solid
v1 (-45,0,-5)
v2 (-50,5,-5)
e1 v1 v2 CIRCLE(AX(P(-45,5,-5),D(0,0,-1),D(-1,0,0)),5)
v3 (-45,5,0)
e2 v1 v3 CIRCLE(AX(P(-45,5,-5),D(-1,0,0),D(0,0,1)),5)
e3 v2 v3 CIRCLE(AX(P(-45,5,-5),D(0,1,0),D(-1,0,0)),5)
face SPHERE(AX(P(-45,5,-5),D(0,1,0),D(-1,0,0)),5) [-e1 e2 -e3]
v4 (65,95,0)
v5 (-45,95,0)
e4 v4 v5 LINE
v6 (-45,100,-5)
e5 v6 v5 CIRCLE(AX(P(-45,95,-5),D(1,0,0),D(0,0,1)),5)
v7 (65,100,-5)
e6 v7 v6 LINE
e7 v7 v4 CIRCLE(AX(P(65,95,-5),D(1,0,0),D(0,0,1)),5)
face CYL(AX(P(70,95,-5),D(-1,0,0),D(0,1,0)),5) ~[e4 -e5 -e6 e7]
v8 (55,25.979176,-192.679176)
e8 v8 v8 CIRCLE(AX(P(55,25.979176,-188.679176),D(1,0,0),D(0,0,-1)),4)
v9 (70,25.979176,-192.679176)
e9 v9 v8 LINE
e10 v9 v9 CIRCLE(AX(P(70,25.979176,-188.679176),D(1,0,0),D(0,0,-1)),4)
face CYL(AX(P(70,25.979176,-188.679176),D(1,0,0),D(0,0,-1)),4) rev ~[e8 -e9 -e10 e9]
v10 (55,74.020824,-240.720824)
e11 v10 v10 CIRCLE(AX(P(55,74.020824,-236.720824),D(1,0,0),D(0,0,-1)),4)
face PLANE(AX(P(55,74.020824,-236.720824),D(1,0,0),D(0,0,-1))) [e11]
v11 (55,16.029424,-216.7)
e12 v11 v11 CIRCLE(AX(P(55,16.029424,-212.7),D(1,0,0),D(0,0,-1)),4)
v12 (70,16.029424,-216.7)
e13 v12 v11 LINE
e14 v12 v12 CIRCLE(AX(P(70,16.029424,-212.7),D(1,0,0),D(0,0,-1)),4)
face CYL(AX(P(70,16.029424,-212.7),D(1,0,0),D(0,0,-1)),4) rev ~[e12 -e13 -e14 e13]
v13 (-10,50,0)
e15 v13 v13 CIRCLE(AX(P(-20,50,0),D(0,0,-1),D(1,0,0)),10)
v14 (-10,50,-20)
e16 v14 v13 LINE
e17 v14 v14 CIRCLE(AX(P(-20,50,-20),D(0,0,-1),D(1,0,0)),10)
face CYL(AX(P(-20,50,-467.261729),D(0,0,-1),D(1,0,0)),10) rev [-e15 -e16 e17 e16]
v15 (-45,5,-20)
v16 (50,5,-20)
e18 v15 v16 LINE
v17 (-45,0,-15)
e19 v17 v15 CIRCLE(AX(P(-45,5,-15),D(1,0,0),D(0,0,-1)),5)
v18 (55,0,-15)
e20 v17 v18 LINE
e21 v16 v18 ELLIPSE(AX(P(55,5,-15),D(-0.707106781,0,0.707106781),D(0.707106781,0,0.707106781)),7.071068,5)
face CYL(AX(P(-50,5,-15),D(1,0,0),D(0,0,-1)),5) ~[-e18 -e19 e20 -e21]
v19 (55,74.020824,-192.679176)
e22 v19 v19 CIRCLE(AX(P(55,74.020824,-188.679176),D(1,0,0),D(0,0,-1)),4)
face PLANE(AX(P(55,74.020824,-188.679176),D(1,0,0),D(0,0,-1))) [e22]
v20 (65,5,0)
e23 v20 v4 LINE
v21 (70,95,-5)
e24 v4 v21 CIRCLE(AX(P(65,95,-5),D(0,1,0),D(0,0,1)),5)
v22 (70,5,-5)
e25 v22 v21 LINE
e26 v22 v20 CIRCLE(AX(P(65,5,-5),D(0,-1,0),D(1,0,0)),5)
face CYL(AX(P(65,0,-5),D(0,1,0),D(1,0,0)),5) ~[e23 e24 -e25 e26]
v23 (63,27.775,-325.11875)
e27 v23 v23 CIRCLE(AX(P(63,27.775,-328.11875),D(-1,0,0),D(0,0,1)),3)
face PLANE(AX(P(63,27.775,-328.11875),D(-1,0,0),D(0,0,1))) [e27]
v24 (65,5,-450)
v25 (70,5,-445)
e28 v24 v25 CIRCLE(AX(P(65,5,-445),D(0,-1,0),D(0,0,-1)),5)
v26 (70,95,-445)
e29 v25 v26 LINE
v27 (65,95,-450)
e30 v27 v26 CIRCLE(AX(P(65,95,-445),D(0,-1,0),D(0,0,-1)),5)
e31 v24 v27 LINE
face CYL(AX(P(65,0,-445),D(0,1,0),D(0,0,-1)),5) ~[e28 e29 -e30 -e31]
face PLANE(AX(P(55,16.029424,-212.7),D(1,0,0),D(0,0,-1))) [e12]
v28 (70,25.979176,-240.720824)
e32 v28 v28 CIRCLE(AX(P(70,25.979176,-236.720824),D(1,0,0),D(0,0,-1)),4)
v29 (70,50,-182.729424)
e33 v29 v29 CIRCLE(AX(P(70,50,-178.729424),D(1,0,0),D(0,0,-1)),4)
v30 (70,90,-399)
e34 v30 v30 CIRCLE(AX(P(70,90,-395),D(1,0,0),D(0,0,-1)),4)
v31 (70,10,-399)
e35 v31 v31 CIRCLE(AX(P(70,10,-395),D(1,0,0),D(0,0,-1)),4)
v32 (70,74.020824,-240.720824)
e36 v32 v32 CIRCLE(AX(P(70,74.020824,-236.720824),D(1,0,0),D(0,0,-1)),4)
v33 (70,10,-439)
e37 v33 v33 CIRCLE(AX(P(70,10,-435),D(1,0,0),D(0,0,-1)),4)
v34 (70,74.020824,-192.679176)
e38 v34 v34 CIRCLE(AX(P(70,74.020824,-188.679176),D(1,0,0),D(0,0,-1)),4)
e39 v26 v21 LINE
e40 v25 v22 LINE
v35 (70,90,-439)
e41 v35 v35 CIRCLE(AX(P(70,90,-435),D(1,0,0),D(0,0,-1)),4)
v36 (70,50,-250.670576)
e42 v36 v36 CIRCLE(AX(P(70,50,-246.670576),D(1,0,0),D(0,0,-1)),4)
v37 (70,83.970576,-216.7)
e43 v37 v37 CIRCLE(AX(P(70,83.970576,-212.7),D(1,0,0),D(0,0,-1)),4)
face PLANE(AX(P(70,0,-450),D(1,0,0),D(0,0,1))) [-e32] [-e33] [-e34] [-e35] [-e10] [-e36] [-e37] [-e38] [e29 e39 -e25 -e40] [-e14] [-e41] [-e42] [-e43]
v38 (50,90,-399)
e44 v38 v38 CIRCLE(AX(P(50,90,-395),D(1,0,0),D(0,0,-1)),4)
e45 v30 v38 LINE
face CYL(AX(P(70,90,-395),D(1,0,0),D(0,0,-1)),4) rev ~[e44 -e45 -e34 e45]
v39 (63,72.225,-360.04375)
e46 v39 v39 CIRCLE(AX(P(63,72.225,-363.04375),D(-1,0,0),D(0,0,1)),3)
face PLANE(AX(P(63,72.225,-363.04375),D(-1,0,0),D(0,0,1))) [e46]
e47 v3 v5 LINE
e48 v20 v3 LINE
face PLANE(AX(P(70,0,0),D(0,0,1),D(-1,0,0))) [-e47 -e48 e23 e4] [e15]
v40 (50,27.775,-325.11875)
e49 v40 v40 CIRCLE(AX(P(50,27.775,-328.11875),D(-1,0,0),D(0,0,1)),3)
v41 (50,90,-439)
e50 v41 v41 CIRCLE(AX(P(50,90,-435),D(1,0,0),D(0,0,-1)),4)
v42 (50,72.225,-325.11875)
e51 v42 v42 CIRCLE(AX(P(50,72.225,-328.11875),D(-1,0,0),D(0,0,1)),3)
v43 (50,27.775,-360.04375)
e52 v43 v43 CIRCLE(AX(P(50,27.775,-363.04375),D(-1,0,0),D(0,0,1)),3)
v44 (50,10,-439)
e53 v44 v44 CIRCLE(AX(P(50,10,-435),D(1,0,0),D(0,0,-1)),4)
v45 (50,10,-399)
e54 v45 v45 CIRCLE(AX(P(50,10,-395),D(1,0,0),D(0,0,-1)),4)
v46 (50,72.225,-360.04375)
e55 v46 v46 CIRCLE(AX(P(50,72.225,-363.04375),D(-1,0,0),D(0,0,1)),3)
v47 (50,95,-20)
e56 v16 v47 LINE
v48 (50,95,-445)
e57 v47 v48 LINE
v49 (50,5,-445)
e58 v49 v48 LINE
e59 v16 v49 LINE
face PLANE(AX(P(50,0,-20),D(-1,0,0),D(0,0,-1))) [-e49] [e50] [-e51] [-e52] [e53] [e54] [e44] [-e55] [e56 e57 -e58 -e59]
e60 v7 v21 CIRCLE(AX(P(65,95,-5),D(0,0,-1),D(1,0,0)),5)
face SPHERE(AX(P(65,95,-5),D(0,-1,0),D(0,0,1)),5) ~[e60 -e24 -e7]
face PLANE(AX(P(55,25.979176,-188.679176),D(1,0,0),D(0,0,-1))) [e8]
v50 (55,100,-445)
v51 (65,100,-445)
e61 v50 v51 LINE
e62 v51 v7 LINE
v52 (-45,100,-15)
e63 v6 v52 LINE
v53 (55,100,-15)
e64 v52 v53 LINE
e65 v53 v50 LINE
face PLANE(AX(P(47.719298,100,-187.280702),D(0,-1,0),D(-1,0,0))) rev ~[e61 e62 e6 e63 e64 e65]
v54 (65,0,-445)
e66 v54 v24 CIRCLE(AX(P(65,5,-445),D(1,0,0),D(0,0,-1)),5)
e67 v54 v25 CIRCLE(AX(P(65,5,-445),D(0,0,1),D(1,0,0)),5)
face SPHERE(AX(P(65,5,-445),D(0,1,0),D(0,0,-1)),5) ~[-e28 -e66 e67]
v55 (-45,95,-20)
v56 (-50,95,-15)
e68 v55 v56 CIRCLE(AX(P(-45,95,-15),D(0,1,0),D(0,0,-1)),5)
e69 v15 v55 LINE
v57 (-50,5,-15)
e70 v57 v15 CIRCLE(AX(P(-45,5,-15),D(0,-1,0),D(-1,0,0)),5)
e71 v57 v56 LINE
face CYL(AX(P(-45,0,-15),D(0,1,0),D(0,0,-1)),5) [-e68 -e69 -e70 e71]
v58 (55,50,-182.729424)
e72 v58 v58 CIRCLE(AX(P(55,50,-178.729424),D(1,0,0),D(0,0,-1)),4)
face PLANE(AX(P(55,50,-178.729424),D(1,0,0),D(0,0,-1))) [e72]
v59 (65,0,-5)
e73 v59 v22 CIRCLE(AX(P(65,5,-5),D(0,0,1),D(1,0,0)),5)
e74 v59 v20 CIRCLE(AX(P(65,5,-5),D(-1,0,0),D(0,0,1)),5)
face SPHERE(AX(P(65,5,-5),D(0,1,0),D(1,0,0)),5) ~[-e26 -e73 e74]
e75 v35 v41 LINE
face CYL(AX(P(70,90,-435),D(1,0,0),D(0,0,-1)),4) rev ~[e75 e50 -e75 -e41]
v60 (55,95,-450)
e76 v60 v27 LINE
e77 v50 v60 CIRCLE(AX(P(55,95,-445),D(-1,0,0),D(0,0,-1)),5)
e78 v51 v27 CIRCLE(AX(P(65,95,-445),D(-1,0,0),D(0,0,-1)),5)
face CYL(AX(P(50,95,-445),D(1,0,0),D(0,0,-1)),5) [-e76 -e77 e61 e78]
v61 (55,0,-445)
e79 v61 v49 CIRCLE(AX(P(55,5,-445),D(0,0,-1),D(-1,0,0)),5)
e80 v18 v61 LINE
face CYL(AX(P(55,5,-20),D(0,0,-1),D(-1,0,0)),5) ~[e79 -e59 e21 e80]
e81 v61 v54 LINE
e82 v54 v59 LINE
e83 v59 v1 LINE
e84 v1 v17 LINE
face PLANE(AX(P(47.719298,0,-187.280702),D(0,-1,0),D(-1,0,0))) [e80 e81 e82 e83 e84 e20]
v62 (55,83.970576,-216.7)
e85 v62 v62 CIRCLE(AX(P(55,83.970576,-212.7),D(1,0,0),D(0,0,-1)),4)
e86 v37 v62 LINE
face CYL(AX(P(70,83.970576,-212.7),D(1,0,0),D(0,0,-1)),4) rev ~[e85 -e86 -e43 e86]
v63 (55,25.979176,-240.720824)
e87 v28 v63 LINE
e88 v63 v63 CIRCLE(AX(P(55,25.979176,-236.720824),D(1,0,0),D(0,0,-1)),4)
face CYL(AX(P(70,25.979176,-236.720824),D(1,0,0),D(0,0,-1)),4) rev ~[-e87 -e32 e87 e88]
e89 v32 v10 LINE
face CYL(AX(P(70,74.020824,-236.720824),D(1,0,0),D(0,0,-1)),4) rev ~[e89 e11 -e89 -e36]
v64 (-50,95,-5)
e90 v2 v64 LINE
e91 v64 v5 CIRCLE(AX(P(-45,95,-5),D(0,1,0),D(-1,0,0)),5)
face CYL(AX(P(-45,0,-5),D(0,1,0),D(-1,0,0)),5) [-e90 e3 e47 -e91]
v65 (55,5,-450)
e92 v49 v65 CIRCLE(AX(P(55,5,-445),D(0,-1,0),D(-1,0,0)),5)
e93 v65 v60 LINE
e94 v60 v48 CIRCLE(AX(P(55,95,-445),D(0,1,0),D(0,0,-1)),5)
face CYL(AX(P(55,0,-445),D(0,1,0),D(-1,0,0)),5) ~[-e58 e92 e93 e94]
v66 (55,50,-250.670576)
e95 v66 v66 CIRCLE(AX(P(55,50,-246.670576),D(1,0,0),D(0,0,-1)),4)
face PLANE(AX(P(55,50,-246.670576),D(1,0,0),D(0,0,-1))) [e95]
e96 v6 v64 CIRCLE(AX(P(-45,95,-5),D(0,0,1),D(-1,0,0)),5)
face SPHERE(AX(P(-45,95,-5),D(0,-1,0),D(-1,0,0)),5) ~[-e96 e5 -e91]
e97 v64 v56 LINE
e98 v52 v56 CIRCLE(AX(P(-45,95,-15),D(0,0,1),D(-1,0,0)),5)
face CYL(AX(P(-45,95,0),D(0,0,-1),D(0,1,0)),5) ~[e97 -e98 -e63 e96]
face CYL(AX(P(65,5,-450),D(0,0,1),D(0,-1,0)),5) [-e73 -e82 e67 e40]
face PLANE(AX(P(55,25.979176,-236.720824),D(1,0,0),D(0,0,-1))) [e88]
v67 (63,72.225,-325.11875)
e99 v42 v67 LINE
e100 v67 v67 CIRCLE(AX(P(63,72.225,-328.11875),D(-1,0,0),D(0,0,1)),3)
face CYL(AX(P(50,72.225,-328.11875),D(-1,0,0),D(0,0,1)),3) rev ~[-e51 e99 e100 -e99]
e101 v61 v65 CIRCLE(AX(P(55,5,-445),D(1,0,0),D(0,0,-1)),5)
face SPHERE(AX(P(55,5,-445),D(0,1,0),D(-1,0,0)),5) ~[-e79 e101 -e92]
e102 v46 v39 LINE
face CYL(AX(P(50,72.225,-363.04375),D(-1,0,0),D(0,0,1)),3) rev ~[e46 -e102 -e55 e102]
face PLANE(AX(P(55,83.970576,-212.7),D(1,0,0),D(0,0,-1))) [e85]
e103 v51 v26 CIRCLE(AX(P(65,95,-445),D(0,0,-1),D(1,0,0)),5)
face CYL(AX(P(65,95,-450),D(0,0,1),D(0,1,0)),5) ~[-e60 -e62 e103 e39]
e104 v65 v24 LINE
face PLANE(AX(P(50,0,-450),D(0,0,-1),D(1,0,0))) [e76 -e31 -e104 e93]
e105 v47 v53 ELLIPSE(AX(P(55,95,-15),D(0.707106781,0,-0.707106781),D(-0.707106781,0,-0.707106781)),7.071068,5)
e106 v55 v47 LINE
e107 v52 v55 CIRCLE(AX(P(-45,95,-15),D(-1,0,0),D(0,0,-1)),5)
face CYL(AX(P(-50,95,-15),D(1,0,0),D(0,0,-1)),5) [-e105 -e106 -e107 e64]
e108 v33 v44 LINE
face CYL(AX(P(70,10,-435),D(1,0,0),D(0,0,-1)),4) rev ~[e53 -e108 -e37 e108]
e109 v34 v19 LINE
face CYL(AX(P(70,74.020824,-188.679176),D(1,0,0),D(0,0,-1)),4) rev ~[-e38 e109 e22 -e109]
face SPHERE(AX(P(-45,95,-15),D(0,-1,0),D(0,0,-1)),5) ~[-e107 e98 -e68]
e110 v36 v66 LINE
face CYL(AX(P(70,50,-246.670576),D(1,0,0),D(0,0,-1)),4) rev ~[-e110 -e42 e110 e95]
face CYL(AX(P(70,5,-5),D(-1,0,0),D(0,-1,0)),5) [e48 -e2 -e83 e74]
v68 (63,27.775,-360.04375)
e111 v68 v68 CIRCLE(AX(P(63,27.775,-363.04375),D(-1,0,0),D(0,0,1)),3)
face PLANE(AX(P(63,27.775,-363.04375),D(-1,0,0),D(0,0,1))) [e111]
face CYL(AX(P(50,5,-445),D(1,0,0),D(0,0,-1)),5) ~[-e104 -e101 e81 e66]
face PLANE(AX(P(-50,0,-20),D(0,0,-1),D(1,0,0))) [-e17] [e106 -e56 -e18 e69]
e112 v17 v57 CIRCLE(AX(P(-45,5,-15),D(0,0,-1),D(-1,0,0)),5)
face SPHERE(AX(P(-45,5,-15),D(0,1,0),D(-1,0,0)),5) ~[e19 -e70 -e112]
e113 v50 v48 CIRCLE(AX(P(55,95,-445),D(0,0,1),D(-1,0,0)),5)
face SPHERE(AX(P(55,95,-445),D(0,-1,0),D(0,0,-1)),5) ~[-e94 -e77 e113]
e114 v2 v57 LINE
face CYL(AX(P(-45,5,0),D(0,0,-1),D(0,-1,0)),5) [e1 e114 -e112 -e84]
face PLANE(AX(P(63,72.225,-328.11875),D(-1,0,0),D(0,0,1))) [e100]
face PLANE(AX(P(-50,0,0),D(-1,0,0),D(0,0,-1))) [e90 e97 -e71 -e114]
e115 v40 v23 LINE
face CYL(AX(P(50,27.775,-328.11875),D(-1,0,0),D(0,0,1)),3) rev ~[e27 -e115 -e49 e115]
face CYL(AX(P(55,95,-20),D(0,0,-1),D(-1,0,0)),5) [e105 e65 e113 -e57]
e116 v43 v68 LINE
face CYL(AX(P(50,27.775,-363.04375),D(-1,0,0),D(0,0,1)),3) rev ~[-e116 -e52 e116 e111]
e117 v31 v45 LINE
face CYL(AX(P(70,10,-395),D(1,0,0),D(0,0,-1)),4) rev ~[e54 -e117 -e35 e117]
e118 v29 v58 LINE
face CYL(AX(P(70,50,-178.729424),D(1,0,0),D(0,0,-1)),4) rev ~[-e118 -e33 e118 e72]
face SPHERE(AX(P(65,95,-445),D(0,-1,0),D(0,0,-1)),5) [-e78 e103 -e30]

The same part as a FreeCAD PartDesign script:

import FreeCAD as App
import Part
import Sketcher
from FreeCAD import Vector
Q = App.Units.Quantity


def edges_at(feature, points):
    """Names of the edges that pass closest to the given points."""
    edges = feature.Shape.Edges
    near = lambda p: min(range(len(edges)), key=lambda i: edges[i].distToShape(Part.Vertex(*p))[0])
    return sorted({f"Edge{near(p) + 1}" for p in points})


def add_polygon(sketch, points):
    """Adds a closed chain of lines whose ends are joined by coincident constraints."""
    first, n = sketch.GeometryCount, len(points)
    for a, b in zip(points, points[1:] + points[:1]):
        sketch.addGeometry(Part.LineSegment(App.Vector(*a, 0), App.Vector(*b, 0)), False)
    for i in range(n):
        sketch.addConstraint(Sketcher.Constraint("Coincident", first + i, 2, first + (i + 1) % n, 1))

doc = App.newDocument("Part")
body = doc.addObject("PartDesign::Body", "Body")

sketch1 = body.newObject("Sketcher::SketchObject", "Sketch")
sketch1.AttachmentSupport = (doc.getObject("XZ_Plane"), [""])
sketch1.MapMode = "FlatFace"
add_polygon(sketch1, [(50, -450), (50, -20), (-50, -20), (-50, 0), (70, 0), (70, -450)])
sketch1.addConstraint(Sketcher.Constraint("Vertical", 0))
sketch1.addConstraint(Sketcher.Constraint("Horizontal", 1))
sketch1.addConstraint(Sketcher.Constraint("Vertical", 2))
sketch1.addConstraint(Sketcher.Constraint("Horizontal", 3))
sketch1.addConstraint(Sketcher.Constraint("Vertical", 4))
sketch1.addConstraint(Sketcher.Constraint("Horizontal", 5))
sketch1.addConstraint(Sketcher.Constraint("PointOnObject", 2, 2, -1))
sketch1.addConstraint(Sketcher.Constraint("Equal", 5, 2))
sketch1.addConstraint(Sketcher.Constraint("DistanceX", 1, 2, 1, 1, Q("100 mm")))
sketch1.addConstraint(Sketcher.Constraint("DistanceX", 3, 1, 3, 2, Q("120 mm")))
sketch1.addConstraint(Sketcher.Constraint("DistanceY", 0, 1, 0, 2, Q("430 mm")))
sketch1.addConstraint(Sketcher.Constraint("DistanceX", -1, 1, 0, 2, Q("50 mm")))
pad1 = body.newObject("PartDesign::Pad", "Pad")
pad1.Profile = sketch1
pad1.Length = 100
pad1.Reversed = True

sketch2 = body.newObject("Sketcher::SketchObject", "Sketch001")
sketch2.AttachmentSupport = (doc.getObject("XY_Plane"), [""])
sketch2.MapMode = "FlatFace"
sketch2.addGeometry(Part.Circle(Vector(-20, 50, 0), Vector(0, 0, 1), 10), False)
sketch2.addConstraint(Sketcher.Constraint("Diameter", 0, Q("20 mm")))
sketch2.addConstraint(Sketcher.Constraint("DistanceX", 0, 3, -1, 1, Q("20 mm")))
sketch2.addConstraint(Sketcher.Constraint("DistanceY", -1, 1, 0, 3, Q("50 mm")))
pocket1 = body.newObject("PartDesign::Pocket", "Pocket")
pocket1.Profile = sketch2
pocket1.Type = "ThroughAll"
pocket1.Midplane = True
doc.recompute()

fillet = body.newObject("PartDesign::Fillet", "Fillet")
fillet.Base = (pocket1, edges_at(pocket1, [
    (-50, 50, 0),
    (-50, 50, -20),
    (50, 50, -450),
    (70, 50, -450),
    (70, 50, 0),
    (60, 100, -450),
    (50, 100, -235),
    (0, 100, -20),
    (-50, 100, -10),
    (10, 100, 0),
    (-50, 0, -10),
    (0, 0, -20),
    (50, 0, -235),
    (60, 0, -450),
    (70, 0, -225),
    (10, 0, 0),
    (70, 100, -225),
]))
fillet.Radius = 5

sketch3 = body.newObject("Sketcher::SketchObject", "Sketch002")
sketch3.AttachmentSupport = (doc.getObject("YZ_Plane"), [""])
sketch3.MapMode = "FlatFace"
sketch3.AttachmentOffset = App.Placement(Vector(0, 0, 70), App.Rotation())
sketch3.addGeometry(Part.Circle(Vector(84, -212.7, 0), Vector(0, 0, 1), 4), False)
sketch3.addGeometry(Part.Circle(Vector(74, -236.7, 0), Vector(0, 0, 1), 4), False)
sketch3.addGeometry(Part.Circle(Vector(50, -246.7, 0), Vector(0, 0, 1), 4), False)
sketch3.addGeometry(Part.Circle(Vector(26, -236.7, 0), Vector(0, 0, 1), 4), False)
sketch3.addGeometry(Part.Circle(Vector(16, -212.7, 0), Vector(0, 0, 1), 4), False)
sketch3.addGeometry(Part.Circle(Vector(26, -188.7, 0), Vector(0, 0, 1), 4), False)
sketch3.addGeometry(Part.Circle(Vector(50, -178.7, 0), Vector(0, 0, 1), 4), False)
sketch3.addGeometry(Part.Circle(Vector(74, -188.7, 0), Vector(0, 0, 1), 4), False)
sketch3.addConstraint(Sketcher.Constraint("Equal", 0, 1))
sketch3.addConstraint(Sketcher.Constraint("Equal", 1, 2))
sketch3.addConstraint(Sketcher.Constraint("Equal", 2, 3))
sketch3.addConstraint(Sketcher.Constraint("Equal", 3, 4))
sketch3.addConstraint(Sketcher.Constraint("Equal", 4, 5))
sketch3.addConstraint(Sketcher.Constraint("Equal", 5, 6))
sketch3.addConstraint(Sketcher.Constraint("Equal", 6, 7))
sketch3.addConstraint(Sketcher.Constraint("Horizontal", 1, 3, 3, 3))
sketch3.addConstraint(Sketcher.Constraint("Horizontal", 0, 3, 4, 3))
sketch3.addConstraint(Sketcher.Constraint("Horizontal", 5, 3, 7, 3))
sketch3.addConstraint(Sketcher.Constraint("Vertical", 3, 3, 5, 3))
sketch3.addConstraint(Sketcher.Constraint("Vertical", 2, 3, 6, 3))
sketch3.addConstraint(Sketcher.Constraint("Vertical", 1, 3, 7, 3))
sketch3.addConstraint(Sketcher.Constraint("Diameter", 0, Q("8 mm")))
sketch3.addConstraint(Sketcher.Constraint("DistanceX", -1, 1, 2, 3, Q("50 mm")))
sketch3.addConstraint(Sketcher.Constraint("DistanceY", 0, 3, -1, 1, Q("212.7 mm")))
sketch3.addConstraint(Sketcher.Constraint("DistanceX", 3, 3, 0, 3, Q("57.9914 mm")))
sketch3.addConstraint(Sketcher.Constraint("DistanceX", 4, 3, 1, 3, Q("57.9914 mm")))
sketch3.addConstraint(Sketcher.Constraint("DistanceY", 2, 3, 5, 3, Q("57.9914 mm")))
sketch3.addConstraint(Sketcher.Constraint("DistanceY", 1, 3, 6, 3, Q("57.9914 mm")))
sketch3.addConstraint(Sketcher.Constraint("DistanceX", 1, 3, 0, 3, Q("9.949751 mm")))
sketch3.addConstraint(Sketcher.Constraint("DistanceY", 2, 3, 1, 3, Q("9.949751 mm")))
sketch3.addConstraint(Sketcher.Constraint("DistanceX", -1, 1, 0, 3, Q("83.970576 mm")))
sketch3.addConstraint(Sketcher.Constraint("DistanceY", 1, 3, -1, 1, Q("236.720824 mm")))
pocket2 = body.newObject("PartDesign::Pocket", "Pocket001")
pocket2.Profile = sketch3
pocket2.Length = 15

sketch4 = body.newObject("Sketcher::SketchObject", "Sketch003")
sketch4.AttachmentSupport = (doc.getObject("YZ_Plane"), [""])
sketch4.MapMode = "FlatFace"
sketch4.AttachmentOffset = App.Placement(Vector(0, 0, 70), App.Rotation())
sketch4.addGeometry(Part.Circle(Vector(10, -395, 0), Vector(0, 0, 1), 4), False)
sketch4.addGeometry(Part.Circle(Vector(10, -435, 0), Vector(0, 0, 1), 4), False)
sketch4.addGeometry(Part.Circle(Vector(90, -435, 0), Vector(0, 0, 1), 4), False)
sketch4.addGeometry(Part.Circle(Vector(90, -395, 0), Vector(0, 0, 1), 4), False)
sketch4.addConstraint(Sketcher.Constraint("Equal", 0, 1))
sketch4.addConstraint(Sketcher.Constraint("Equal", 1, 2))
sketch4.addConstraint(Sketcher.Constraint("Equal", 2, 3))
sketch4.addConstraint(Sketcher.Constraint("Horizontal", 1, 3, 2, 3))
sketch4.addConstraint(Sketcher.Constraint("Horizontal", 0, 3, 3, 3))
sketch4.addConstraint(Sketcher.Constraint("Vertical", 0, 3, 1, 3))
sketch4.addConstraint(Sketcher.Constraint("Vertical", 2, 3, 3, 3))
sketch4.addConstraint(Sketcher.Constraint("Diameter", 0, Q("8 mm")))
sketch4.addConstraint(Sketcher.Constraint("DistanceX", -1, 1, 0, 3, Q("10 mm")))
sketch4.addConstraint(Sketcher.Constraint("DistanceY", 0, 3, -1, 1, Q("395 mm")))
sketch4.addConstraint(Sketcher.Constraint("DistanceY", 1, 3, -1, 1, Q("435 mm")))
sketch4.addConstraint(Sketcher.Constraint("DistanceX", -1, 1, 2, 3, Q("90 mm")))
pocket3 = body.newObject("PartDesign::Pocket", "Pocket002")
pocket3.Profile = sketch4
pocket3.Length = 20

sketch5 = body.newObject("Sketcher::SketchObject", "Sketch004")
sketch5.AttachmentSupport = (doc.getObject("YZ_Plane"), [""])
sketch5.MapMode = "FlatFace"
sketch5.AttachmentOffset = App.Placement(Vector(0, 0, 50), App.Rotation())
sketch5.addGeometry(Part.Circle(Vector(72.2, -363, 0), Vector(0, 0, 1), 3), False)
sketch5.addGeometry(Part.Circle(Vector(72.2, -328.1, 0), Vector(0, 0, 1), 3), False)
sketch5.addGeometry(Part.Circle(Vector(27.8, -363, 0), Vector(0, 0, 1), 3), False)
sketch5.addGeometry(Part.Circle(Vector(27.8, -328.1, 0), Vector(0, 0, 1), 3), False)
sketch5.addConstraint(Sketcher.Constraint("Equal", 0, 1))
sketch5.addConstraint(Sketcher.Constraint("Equal", 1, 2))
sketch5.addConstraint(Sketcher.Constraint("Equal", 2, 3))
sketch5.addConstraint(Sketcher.Constraint("Horizontal", 0, 3, 2, 3))
sketch5.addConstraint(Sketcher.Constraint("Horizontal", 1, 3, 3, 3))
sketch5.addConstraint(Sketcher.Constraint("Vertical", 0, 3, 1, 3))
sketch5.addConstraint(Sketcher.Constraint("Vertical", 2, 3, 3, 3))
sketch5.addConstraint(Sketcher.Constraint("Diameter", 0, Q("6 mm")))
sketch5.addConstraint(Sketcher.Constraint("DistanceX", 2, 3, 0, 3, Q("44.45 mm")))
sketch5.addConstraint(Sketcher.Constraint("DistanceX", -1, 1, 0, 3, Q("72.225 mm")))
sketch5.addConstraint(Sketcher.Constraint("DistanceY", 0, 3, 1, 3, Q("34.925 mm")))
sketch5.addConstraint(Sketcher.Constraint("DistanceY", 0, 3, -1, 1, Q("363.04375 mm")))
pocket4 = body.newObject("PartDesign::Pocket", "Pocket003")
pocket4.Profile = sketch5
pocket4.Length = 13
pocket4.Reversed = True

doc.recompute()
